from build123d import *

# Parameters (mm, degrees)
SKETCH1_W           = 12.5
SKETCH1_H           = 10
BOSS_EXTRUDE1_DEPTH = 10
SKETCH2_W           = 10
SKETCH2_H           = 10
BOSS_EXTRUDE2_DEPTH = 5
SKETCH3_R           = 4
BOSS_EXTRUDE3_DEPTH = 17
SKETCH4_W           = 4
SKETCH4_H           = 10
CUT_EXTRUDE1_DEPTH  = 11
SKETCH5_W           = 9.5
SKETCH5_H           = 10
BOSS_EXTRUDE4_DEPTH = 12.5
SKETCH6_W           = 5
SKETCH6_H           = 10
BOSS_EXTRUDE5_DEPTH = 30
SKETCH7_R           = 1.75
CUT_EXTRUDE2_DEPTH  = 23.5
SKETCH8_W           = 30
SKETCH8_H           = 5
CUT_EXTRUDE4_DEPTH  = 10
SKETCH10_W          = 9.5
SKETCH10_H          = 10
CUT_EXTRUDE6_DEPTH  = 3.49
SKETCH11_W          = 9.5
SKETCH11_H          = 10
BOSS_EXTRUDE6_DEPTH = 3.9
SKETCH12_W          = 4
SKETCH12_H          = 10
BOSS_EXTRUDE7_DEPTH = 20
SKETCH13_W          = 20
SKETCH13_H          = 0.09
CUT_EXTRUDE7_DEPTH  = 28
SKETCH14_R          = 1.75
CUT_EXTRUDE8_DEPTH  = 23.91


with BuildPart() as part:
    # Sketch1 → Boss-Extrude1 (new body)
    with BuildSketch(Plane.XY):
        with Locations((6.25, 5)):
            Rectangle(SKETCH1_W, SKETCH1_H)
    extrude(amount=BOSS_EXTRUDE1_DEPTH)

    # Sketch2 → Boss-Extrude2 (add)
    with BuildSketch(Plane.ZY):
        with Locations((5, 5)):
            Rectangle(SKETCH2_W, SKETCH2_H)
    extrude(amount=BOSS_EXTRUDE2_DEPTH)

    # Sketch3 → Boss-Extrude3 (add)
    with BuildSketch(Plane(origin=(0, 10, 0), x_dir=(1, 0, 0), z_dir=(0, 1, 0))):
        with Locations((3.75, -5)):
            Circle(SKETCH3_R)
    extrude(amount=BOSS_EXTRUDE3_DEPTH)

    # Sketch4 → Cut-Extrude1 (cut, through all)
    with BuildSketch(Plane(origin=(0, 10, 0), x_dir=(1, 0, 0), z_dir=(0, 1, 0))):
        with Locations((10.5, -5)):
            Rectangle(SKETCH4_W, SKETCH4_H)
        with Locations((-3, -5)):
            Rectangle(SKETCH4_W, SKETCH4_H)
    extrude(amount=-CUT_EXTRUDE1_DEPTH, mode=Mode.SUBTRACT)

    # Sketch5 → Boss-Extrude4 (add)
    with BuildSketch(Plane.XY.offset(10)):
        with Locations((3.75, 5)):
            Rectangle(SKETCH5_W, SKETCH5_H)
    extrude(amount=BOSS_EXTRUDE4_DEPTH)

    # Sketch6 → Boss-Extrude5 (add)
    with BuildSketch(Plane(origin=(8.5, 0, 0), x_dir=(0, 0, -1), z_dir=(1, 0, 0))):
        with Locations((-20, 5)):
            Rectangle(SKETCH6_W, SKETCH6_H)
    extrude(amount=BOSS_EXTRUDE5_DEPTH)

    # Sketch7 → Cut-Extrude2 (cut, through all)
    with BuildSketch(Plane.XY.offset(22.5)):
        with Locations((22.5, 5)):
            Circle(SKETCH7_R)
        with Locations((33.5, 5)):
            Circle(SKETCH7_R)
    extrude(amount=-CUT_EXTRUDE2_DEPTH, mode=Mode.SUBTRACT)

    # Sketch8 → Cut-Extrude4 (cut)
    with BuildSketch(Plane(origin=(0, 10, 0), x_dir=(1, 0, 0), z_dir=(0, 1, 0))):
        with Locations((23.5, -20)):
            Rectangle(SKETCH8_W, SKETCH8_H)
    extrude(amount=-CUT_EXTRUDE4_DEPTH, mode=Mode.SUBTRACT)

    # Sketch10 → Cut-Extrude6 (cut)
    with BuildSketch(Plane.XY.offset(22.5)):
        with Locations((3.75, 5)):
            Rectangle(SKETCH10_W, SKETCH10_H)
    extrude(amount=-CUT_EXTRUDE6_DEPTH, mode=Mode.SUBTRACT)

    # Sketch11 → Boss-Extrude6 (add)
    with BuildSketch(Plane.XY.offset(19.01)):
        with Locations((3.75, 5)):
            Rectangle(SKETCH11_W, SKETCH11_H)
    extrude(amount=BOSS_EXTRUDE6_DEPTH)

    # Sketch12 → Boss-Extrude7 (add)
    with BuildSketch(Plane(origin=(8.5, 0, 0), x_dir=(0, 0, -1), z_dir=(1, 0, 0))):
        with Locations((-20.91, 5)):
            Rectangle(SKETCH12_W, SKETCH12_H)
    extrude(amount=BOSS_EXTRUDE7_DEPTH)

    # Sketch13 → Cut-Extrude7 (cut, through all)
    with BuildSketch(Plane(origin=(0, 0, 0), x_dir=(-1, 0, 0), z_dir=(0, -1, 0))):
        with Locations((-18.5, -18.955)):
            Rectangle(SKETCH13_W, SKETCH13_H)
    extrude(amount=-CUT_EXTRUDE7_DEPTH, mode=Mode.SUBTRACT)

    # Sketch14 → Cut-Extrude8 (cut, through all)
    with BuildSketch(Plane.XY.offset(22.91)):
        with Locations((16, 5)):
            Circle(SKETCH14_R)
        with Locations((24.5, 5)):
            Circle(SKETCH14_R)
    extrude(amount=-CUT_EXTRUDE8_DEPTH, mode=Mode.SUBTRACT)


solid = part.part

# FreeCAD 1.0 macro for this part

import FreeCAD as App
import Part
import Sketcher

doc = App.newDocument("Part")
body = doc.addObject("PartDesign::Body", "Body")

# Sketch on XY plane
sketch1 = body.newObject("Sketcher::SketchObject", "Sketch")
sketch1.AttachmentSupport = (doc.getObject("XY_Plane"), [""])
sketch1.MapMode = "FlatFace"
sketch1.addGeometry([
    Part.LineSegment(App.Vector(0, 10, 0), App.Vector(0, 0, 0)),
    Part.LineSegment(App.Vector(0, 0, 0), App.Vector(12.5, 0, 0)),
    Part.LineSegment(App.Vector(12.5, 0, 0), App.Vector(12.5, 10, 0)),
    Part.LineSegment(App.Vector(12.5, 10, 0), App.Vector(0, 10, 0)),
], False)
sketch1.addConstraint([
    Sketcher.Constraint("Coincident", 0, 2, 1, 1),
    Sketcher.Constraint("Coincident", 1, 2, 2, 1),
    Sketcher.Constraint("Coincident", 2, 2, 3, 1),
    Sketcher.Constraint("Coincident", 3, 2, 0, 1),
    Sketcher.Constraint("Vertical", 0),
    Sketcher.Constraint("Horizontal", 1),
    Sketcher.Constraint("Vertical", 2),
    Sketcher.Constraint("Horizontal", 3),
    Sketcher.Constraint("Coincident", 0, 2, -1, 1),
    Sketcher.Constraint("DistanceY", 0, 2, 0, 1, 10.0),
    Sketcher.Constraint("DistanceX", 1, 1, 1, 2, 12.5),
])
pad1 = body.newObject("PartDesign::Pad", "Pad")
pad1.Profile = sketch1
pad1.Length = 10

# Sketch on YZ plane
sketch2 = body.newObject("Sketcher::SketchObject", "Sketch001")
sketch2.AttachmentSupport = (doc.getObject("YZ_Plane"), [""])
sketch2.MapMode = "FlatFace"
sketch2.addGeometry([
    Part.LineSegment(App.Vector(10, 0, 0), App.Vector(0, 0, 0)),
    Part.LineSegment(App.Vector(0, 0, 0), App.Vector(0, 10, 0)),
    Part.LineSegment(App.Vector(0, 10, 0), App.Vector(10, 10, 0)),
    Part.LineSegment(App.Vector(10, 10, 0), App.Vector(10, 0, 0)),
], False)
sketch2.addConstraint([
    Sketcher.Constraint("Coincident", 0, 2, 1, 1),
    Sketcher.Constraint("Coincident", 1, 2, 2, 1),
    Sketcher.Constraint("Coincident", 2, 2, 3, 1),
    Sketcher.Constraint("Coincident", 3, 2, 0, 1),
    Sketcher.Constraint("Horizontal", 0),
    Sketcher.Constraint("Vertical", 1),
    Sketcher.Constraint("Horizontal", 2),
    Sketcher.Constraint("Vertical", 3),
    Sketcher.Constraint("Coincident", 0, 2, -1, 1),
    Sketcher.Constraint("Equal", 2, 1),
    Sketcher.Constraint("DistanceX", 0, 2, 0, 1, 10.0),
])
pad2 = body.newObject("PartDesign::Pad", "Pad001")
pad2.Profile = sketch2
pad2.Length = 5
pad2.Reversed = True

# Sketch on XZ plane
sketch3 = body.newObject("Sketcher::SketchObject", "Sketch002")
sketch3.AttachmentSupport = (doc.getObject("XZ_Plane"), [""])
sketch3.MapMode = "FlatFace"
sketch3.AttachmentOffset = App.Placement(App.Vector(0, 0, -10), App.Rotation())
sketch3.addGeometry(Part.Circle(App.Vector(3.75, 5, 0), App.Vector(0, 0, 1), 4), False)
sketch3.addConstraint([
    Sketcher.Constraint("Diameter", 0, 8.0),
    Sketcher.Constraint("DistanceY", -1, 1, 0, 3, 5.0),
    Sketcher.Constraint("DistanceX", -1, 1, 0, 3, 3.75),
])
pad3 = body.newObject("PartDesign::Pad", "Pad002")
pad3.Profile = sketch3
pad3.Length = 17
pad3.Reversed = True

# Sketch on XZ plane
sketch4 = body.newObject("Sketcher::SketchObject", "Sketch003")
sketch4.AttachmentSupport = (doc.getObject("XZ_Plane"), [""])
sketch4.MapMode = "FlatFace"
sketch4.AttachmentOffset = App.Placement(App.Vector(0, 0, -10), App.Rotation())
sketch4.addGeometry([
    Part.LineSegment(App.Vector(8.5, 0, 0), App.Vector(8.5, 10, 0)),  # 0
    Part.LineSegment(App.Vector(8.5, 10, 0), App.Vector(12.5, 10, 0)),  # 1
    Part.LineSegment(App.Vector(12.5, 10, 0), App.Vector(12.5, 0, 0)),  # 2
    Part.LineSegment(App.Vector(12.5, 0, 0), App.Vector(8.5, 0, 0)),  # 3
    Part.LineSegment(App.Vector(-5, 0, 0), App.Vector(-5, 10, 0)),  # 4
    Part.LineSegment(App.Vector(-5, 10, 0), App.Vector(-1, 10, 0)),  # 5
    Part.LineSegment(App.Vector(-1, 10, 0), App.Vector(-1, 0, 0)),  # 6
    Part.LineSegment(App.Vector(-1, 0, 0), App.Vector(-5, 0, 0)),  # 7
], False)
sketch4.addConstraint([
    Sketcher.Constraint("Coincident", 0, 2, 1, 1),
    Sketcher.Constraint("Coincident", 1, 2, 2, 1),
    Sketcher.Constraint("Coincident", 2, 2, 3, 1),
    Sketcher.Constraint("Coincident", 3, 2, 0, 1),
    Sketcher.Constraint("Coincident", 4, 2, 5, 1),
    Sketcher.Constraint("Coincident", 5, 2, 6, 1),
    Sketcher.Constraint("Coincident", 6, 2, 7, 1),
    Sketcher.Constraint("Coincident", 7, 2, 4, 1),
    Sketcher.Constraint("Vertical", 0),
    Sketcher.Constraint("Horizontal", 1),
    Sketcher.Constraint("Vertical", 2),
    Sketcher.Constraint("Horizontal", 3),
    Sketcher.Constraint("Vertical", 4),
    Sketcher.Constraint("Horizontal", 5),
    Sketcher.Constraint("Vertical", 6),
    Sketcher.Constraint("Horizontal", 7),
    Sketcher.Constraint("PointOnObject", 2, 2, -1),
    Sketcher.Constraint("PointOnObject", 6, 2, -1),
    Sketcher.Constraint("Horizontal", 1, 2, 4, 2),
    Sketcher.Constraint("Equal", 3, 5),
    Sketcher.Constraint("DistanceX", 1, 1, 1, 2, 4.0),
    Sketcher.Constraint("DistanceY", 0, 1, 0, 2, 10.0),
    Sketcher.Constraint("DistanceX", 4, 2, -1, 1, 5.0),
    Sketcher.Constraint("DistanceX", -1, 1, 0, 2, 8.5),
])
pocket1 = body.newObject("PartDesign::Pocket", "Pocket")
pocket1.Profile = sketch4
pocket1.Type = "ThroughAll"
pocket1.Reversed = True

# Sketch on XY plane
sketch5 = body.newObject("Sketcher::SketchObject", "Sketch004")
sketch5.AttachmentSupport = (doc.getObject("XY_Plane"), [""])
sketch5.MapMode = "FlatFace"
sketch5.AttachmentOffset = App.Placement(App.Vector(0, 0, 10), App.Rotation())
sketch5.addGeometry([
    Part.LineSegment(App.Vector(-1, 10, 0), App.Vector(-1, 0, 0)),
    Part.LineSegment(App.Vector(-1, 0, 0), App.Vector(8.5, 0, 0)),
    Part.LineSegment(App.Vector(8.5, 0, 0), App.Vector(8.5, 10, 0)),
    Part.LineSegment(App.Vector(8.5, 10, 0), App.Vector(-1, 10, 0)),
], False)
sketch5.addConstraint([
    Sketcher.Constraint("Coincident", 0, 2, 1, 1),
    Sketcher.Constraint("Coincident", 1, 2, 2, 1),
    Sketcher.Constraint("Coincident", 2, 2, 3, 1),
    Sketcher.Constraint("Coincident", 3, 2, 0, 1),
    Sketcher.Constraint("Vertical", 0),
    Sketcher.Constraint("Horizontal", 1),
    Sketcher.Constraint("Vertical", 2),
    Sketcher.Constraint("Horizontal", 3),
    Sketcher.Constraint("PointOnObject", 0, 2, -1),
    Sketcher.Constraint("DistanceY", 0, 2, 0, 1, 10.0),
    Sketcher.Constraint("DistanceX", 1, 1, 1, 2, 9.5),
    Sketcher.Constraint("DistanceX", 0, 2, -1, 1, 1.0),
])
pad4 = body.newObject("PartDesign::Pad", "Pad003")
pad4.Profile = sketch5
pad4.Length = 12.5

# Sketch on YZ plane
sketch6 = body.newObject("Sketcher::SketchObject", "Sketch005")
sketch6.AttachmentSupport = (doc.getObject("YZ_Plane"), [""])
sketch6.MapMode = "FlatFace"
sketch6.AttachmentOffset = App.Placement(App.Vector(0, 0, 8.5), App.Rotation())
sketch6.addGeometry([
    Part.LineSegment(App.Vector(10, 22.5, 0), App.Vector(0, 22.5, 0)),
    Part.LineSegment(App.Vector(0, 22.5, 0), App.Vector(0, 17.5, 0)),
    Part.LineSegment(App.Vector(0, 17.5, 0), App.Vector(10, 17.5, 0)),
    Part.LineSegment(App.Vector(10, 17.5, 0), App.Vector(10, 22.5, 0)),
], False)
sketch6.addConstraint([
    Sketcher.Constraint("Coincident", 0, 2, 1, 1),
    Sketcher.Constraint("Coincident", 1, 2, 2, 1),
    Sketcher.Constraint("Coincident", 2, 2, 3, 1),
    Sketcher.Constraint("Coincident", 3, 2, 0, 1),
    Sketcher.Constraint("Horizontal", 0),
    Sketcher.Constraint("Vertical", 1),
    Sketcher.Constraint("Horizontal", 2),
    Sketcher.Constraint("Vertical", 3),
    Sketcher.Constraint("PointOnObject", 0, 2, -2),
    Sketcher.Constraint("DistanceX", 0, 2, 0, 1, 10.0),
    Sketcher.Constraint("DistanceY", 1, 2, 1, 1, 5.0),
    Sketcher.Constraint("DistanceY", -1, 1, 0, 2, 22.5),
])
pad5 = body.newObject("PartDesign::Pad", "Pad004")
pad5.Profile = sketch6
pad5.Length = 30

# Sketch on XY plane
sketch7 = body.newObject("Sketcher::SketchObject", "Sketch006")
sketch7.AttachmentSupport = (doc.getObject("XY_Plane"), [""])
sketch7.MapMode = "FlatFace"
sketch7.AttachmentOffset = App.Placement(App.Vector(0, 0, 22.5), App.Rotation())
sketch7.addGeometry([
    Part.Circle(App.Vector(22.5, 5, 0), App.Vector(0, 0, 1), 1.75),
    Part.Circle(App.Vector(33.5, 5, 0), App.Vector(0, 0, 1), 1.75),
], False)
sketch7.addConstraint([
    Sketcher.Constraint("Equal", 0, 1),
    Sketcher.Constraint("Horizontal", 0, 3, 1, 3),
    Sketcher.Constraint("Diameter", 0, 3.5),
    Sketcher.Constraint("DistanceY", -1, 1, 0, 3, 5.0),
    Sketcher.Constraint("DistanceX", 0, 3, 1, 3, 11.0),
    Sketcher.Constraint("DistanceX", -1, 1, 0, 3, 22.5),
])
pocket2 = body.newObject("PartDesign::Pocket", "Pocket001")
pocket2.Profile = sketch7
pocket2.Type = "ThroughAll"

# Sketch on XZ plane
sketch8 = body.newObject("Sketcher::SketchObject", "Sketch007")
sketch8.AttachmentSupport = (doc.getObject("XZ_Plane"), [""])
sketch8.MapMode = "FlatFace"
sketch8.AttachmentOffset = App.Placement(App.Vector(0, 0, -10), App.Rotation())
sketch8.addGeometry([
    Part.LineSegment(App.Vector(8.5, 17.5, 0), App.Vector(8.5, 22.5, 0)),
    Part.LineSegment(App.Vector(8.5, 22.5, 0), App.Vector(38.5, 22.5, 0)),
    Part.LineSegment(App.Vector(38.5, 22.5, 0), App.Vector(38.5, 17.5, 0)),
    Part.LineSegment(App.Vector(38.5, 17.5, 0), App.Vector(8.5, 17.5, 0)),
], False)
sketch8.addConstraint([
    Sketcher.Constraint("Coincident", 0, 2, 1, 1),
    Sketcher.Constraint("Coincident", 1, 2, 2, 1),
    Sketcher.Constraint("Coincident", 2, 2, 3, 1),
    Sketcher.Constraint("Coincident", 3, 2, 0, 1),
    Sketcher.Constraint("Vertical", 0),
    Sketcher.Constraint("Horizontal", 1),
    Sketcher.Constraint("Vertical", 2),
    Sketcher.Constraint("Horizontal", 3),
    Sketcher.Constraint("DistanceX", 1, 1, 1, 2, 30.0),
    Sketcher.Constraint("DistanceY", 0, 1, 0, 2, 5.0),
    Sketcher.Constraint("DistanceX", -1, 1, 0, 2, 8.5),
    Sketcher.Constraint("DistanceY", -1, 1, 0, 2, 22.5),
])
pocket3 = body.newObject("PartDesign::Pocket", "Pocket002")
pocket3.Profile = sketch8
pocket3.Length = 10
pocket3.Reversed = True

# Sketch on XY plane
sketch9 = body.newObject("Sketcher::SketchObject", "Sketch008")
sketch9.AttachmentSupport = (doc.getObject("XY_Plane"), [""])
sketch9.MapMode = "FlatFace"
sketch9.AttachmentOffset = App.Placement(App.Vector(0, 0, 22.5), App.Rotation())
sketch9.addGeometry([
    Part.LineSegment(App.Vector(-1, 10, 0), App.Vector(-1, 0, 0)),
    Part.LineSegment(App.Vector(-1, 0, 0), App.Vector(8.5, 0, 0)),
    Part.LineSegment(App.Vector(8.5, 0, 0), App.Vector(8.5, 10, 0)),
    Part.LineSegment(App.Vector(8.5, 10, 0), App.Vector(-1, 10, 0)),
], False)
sketch9.addConstraint([
    Sketcher.Constraint("Coincident", 0, 2, 1, 1),
    Sketcher.Constraint("Coincident", 1, 2, 2, 1),
    Sketcher.Constraint("Coincident", 2, 2, 3, 1),
    Sketcher.Constraint("Coincident", 3, 2, 0, 1),
    Sketcher.Constraint("Vertical", 0),
    Sketcher.Constraint("Horizontal", 1),
    Sketcher.Constraint("Vertical", 2),
    Sketcher.Constraint("Horizontal", 3),
    Sketcher.Constraint("PointOnObject", 0, 2, -1),
    Sketcher.Constraint("DistanceY", 0, 2, 0, 1, 10.0),
    Sketcher.Constraint("DistanceX", 1, 1, 1, 2, 9.5),
    Sketcher.Constraint("DistanceX", 0, 2, -1, 1, 1.0),
])
pocket4 = body.newObject("PartDesign::Pocket", "Pocket003")
pocket4.Profile = sketch9
pocket4.Length = 3.49

# Sketch on XY plane
sketch10 = body.newObject("Sketcher::SketchObject", "Sketch009")
sketch10.AttachmentSupport = (doc.getObject("XY_Plane"), [""])
sketch10.MapMode = "FlatFace"
sketch10.AttachmentOffset = App.Placement(App.Vector(0, 0, 19.01), App.Rotation())
sketch10.addGeometry([
    Part.LineSegment(App.Vector(-1, 10, 0), App.Vector(-1, 0, 0)),
    Part.LineSegment(App.Vector(-1, 0, 0), App.Vector(8.5, 0, 0)),
    Part.LineSegment(App.Vector(8.5, 0, 0), App.Vector(8.5, 10, 0)),
    Part.LineSegment(App.Vector(8.5, 10, 0), App.Vector(-1, 10, 0)),
], False)
sketch10.addConstraint([
    Sketcher.Constraint("Coincident", 0, 2, 1, 1),
    Sketcher.Constraint("Coincident", 1, 2, 2, 1),
    Sketcher.Constraint("Coincident", 2, 2, 3, 1),
    Sketcher.Constraint("Coincident", 3, 2, 0, 1),
    Sketcher.Constraint("Vertical", 0),
    Sketcher.Constraint("Horizontal", 1),
    Sketcher.Constraint("Vertical", 2),
    Sketcher.Constraint("Horizontal", 3),
    Sketcher.Constraint("PointOnObject", 0, 2, -1),
    Sketcher.Constraint("DistanceY", 0, 2, 0, 1, 10.0),
    Sketcher.Constraint("DistanceX", 1, 1, 1, 2, 9.5),
    Sketcher.Constraint("DistanceX", 0, 2, -1, 1, 1.0),
])
pad6 = body.newObject("PartDesign::Pad", "Pad005")
pad6.Profile = sketch10
pad6.Length = 3.9

# Sketch on YZ plane
sketch11 = body.newObject("Sketcher::SketchObject", "Sketch010")
sketch11.AttachmentSupport = (doc.getObject("YZ_Plane"), [""])
sketch11.MapMode = "FlatFace"
sketch11.AttachmentOffset = App.Placement(App.Vector(0, 0, 8.5), App.Rotation())
sketch11.addGeometry([
    Part.LineSegment(App.Vector(10, 22.91, 0), App.Vector(0, 22.91, 0)),
    Part.LineSegment(App.Vector(0, 22.91, 0), App.Vector(0, 18.91, 0)),
    Part.LineSegment(App.Vector(0, 18.91, 0), App.Vector(10, 18.91, 0)),
    Part.LineSegment(App.Vector(10, 18.91, 0), App.Vector(10, 22.91, 0)),
], False)
sketch11.addConstraint([
    Sketcher.Constraint("Coincident", 0, 2, 1, 1),
    Sketcher.Constraint("Coincident", 1, 2, 2, 1),
    Sketcher.Constraint("Coincident", 2, 2, 3, 1),
    Sketcher.Constraint("Coincident", 3, 2, 0, 1),
    Sketcher.Constraint("Horizontal", 0),
    Sketcher.Constraint("Vertical", 1),
    Sketcher.Constraint("Horizontal", 2),
    Sketcher.Constraint("Vertical", 3),
    Sketcher.Constraint("PointOnObject", 0, 2, -2),
    Sketcher.Constraint("DistanceX", 0, 2, 0, 1, 10.0),
    Sketcher.Constraint("DistanceY", 1, 2, 1, 1, 4.0),
    Sketcher.Constraint("DistanceY", -1, 1, 0, 2, 22.91),
])
pad7 = body.newObject("PartDesign::Pad", "Pad006")
pad7.Profile = sketch11
pad7.Length = 20

# Sketch on XZ plane
sketch12 = body.newObject("Sketcher::SketchObject", "Sketch011")
sketch12.AttachmentSupport = (doc.getObject("XZ_Plane"), [""])
sketch12.MapMode = "FlatFace"
sketch12.addGeometry([
    Part.LineSegment(App.Vector(28.5, 18.91, 0), App.Vector(28.5, 19, 0)),
    Part.LineSegment(App.Vector(28.5, 19, 0), App.Vector(8.5, 19, 0)),
    Part.LineSegment(App.Vector(8.5, 19, 0), App.Vector(8.5, 18.91, 0)),
    Part.LineSegment(App.Vector(8.5, 18.91, 0), App.Vector(28.5, 18.91, 0)),
], False)
sketch12.addConstraint([
    Sketcher.Constraint("Coincident", 0, 2, 1, 1),
    Sketcher.Constraint("Coincident", 1, 2, 2, 1),
    Sketcher.Constraint("Coincident", 2, 2, 3, 1),
    Sketcher.Constraint("Coincident", 3, 2, 0, 1),
    Sketcher.Constraint("Vertical", 0),
    Sketcher.Constraint("Horizontal", 1),
    Sketcher.Constraint("Vertical", 2),
    Sketcher.Constraint("Horizontal", 3),
    Sketcher.Constraint("DistanceX", 1, 2, 1, 1, 20.0),
    Sketcher.Constraint("DistanceY", -1, 1, 0, 2, 19.0),
    Sketcher.Constraint("DistanceY", 0, 1, 0, 2, 0.09),
    Sketcher.Constraint("DistanceX", -1, 1, 0, 2, 28.5),
])
pocket5 = body.newObject("PartDesign::Pocket", "Pocket004")
pocket5.Profile = sketch12
pocket5.Type = "ThroughAll"

# Sketch on XY plane
sketch13 = body.newObject("Sketcher::SketchObject", "Sketch012")
sketch13.AttachmentSupport = (doc.getObject("XY_Plane"), [""])
sketch13.MapMode = "FlatFace"
sketch13.AttachmentOffset = App.Placement(App.Vector(0, 0, 22.91), App.Rotation())
sketch13.addGeometry([
    Part.Circle(App.Vector(16, 5, 0), App.Vector(0, 0, 1), 1.75),
    Part.Circle(App.Vector(24.5, 5, 0), App.Vector(0, 0, 1), 1.75),
], False)
sketch13.addConstraint([
    Sketcher.Constraint("Equal", 0, 1),
    Sketcher.Constraint("Horizontal", 0, 3, 1, 3),
    Sketcher.Constraint("Diameter", 0, 3.5),
    Sketcher.Constraint("DistanceX", -1, 1, 0, 3, 16.0),
    Sketcher.Constraint("DistanceY", -1, 1, 0, 3, 5.0),
    Sketcher.Constraint("DistanceX", -1, 1, 1, 3, 24.5),
])
pocket6 = body.newObject("PartDesign::Pocket", "Pocket005")
pocket6.Profile = sketch13
pocket6.Type = "ThroughAll"

doc.recompute()
